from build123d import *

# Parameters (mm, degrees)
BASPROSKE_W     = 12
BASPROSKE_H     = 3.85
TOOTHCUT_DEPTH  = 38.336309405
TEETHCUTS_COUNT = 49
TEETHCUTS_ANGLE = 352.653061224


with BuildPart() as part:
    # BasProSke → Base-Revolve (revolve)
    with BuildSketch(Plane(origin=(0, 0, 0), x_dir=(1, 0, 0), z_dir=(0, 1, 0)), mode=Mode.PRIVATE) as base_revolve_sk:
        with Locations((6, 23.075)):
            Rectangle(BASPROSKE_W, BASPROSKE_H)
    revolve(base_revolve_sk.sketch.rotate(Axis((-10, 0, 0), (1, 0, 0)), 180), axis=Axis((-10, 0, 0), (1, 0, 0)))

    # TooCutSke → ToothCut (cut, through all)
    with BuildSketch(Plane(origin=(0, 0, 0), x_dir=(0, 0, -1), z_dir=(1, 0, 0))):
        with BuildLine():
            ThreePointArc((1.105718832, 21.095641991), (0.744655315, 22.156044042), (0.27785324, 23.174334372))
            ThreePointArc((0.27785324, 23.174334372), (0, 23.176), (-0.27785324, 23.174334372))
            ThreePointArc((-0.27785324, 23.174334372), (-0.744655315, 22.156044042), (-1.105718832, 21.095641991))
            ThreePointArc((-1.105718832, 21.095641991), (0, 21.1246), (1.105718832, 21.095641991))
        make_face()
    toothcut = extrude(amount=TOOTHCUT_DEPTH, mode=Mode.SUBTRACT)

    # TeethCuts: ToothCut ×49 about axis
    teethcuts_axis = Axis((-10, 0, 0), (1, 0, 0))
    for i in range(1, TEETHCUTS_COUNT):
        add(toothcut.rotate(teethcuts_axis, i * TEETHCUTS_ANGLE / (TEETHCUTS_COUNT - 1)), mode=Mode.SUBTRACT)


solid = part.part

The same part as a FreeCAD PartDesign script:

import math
import FreeCAD as App
import Part
import Sketcher
Q = App.Units.Quantity


def add_polygon(sketch, points):
    """Adds a closed chain of lines whose ends are joined by coincident constraints."""
    first, n = sketch.GeometryCount, len(points)
    for a, b in zip(points, points[1:] + points[:1]):
        sketch.addGeometry(Part.LineSegment(App.Vector(*a, 0), App.Vector(*b, 0)), False)
    for i in range(n):
        sketch.addConstraint(Sketcher.Constraint("Coincident", first + i, 2, first + (i + 1) % n, 1))

doc = App.newDocument("Part")
body = doc.addObject("PartDesign::Body", "Body")

# Sketch on XZ plane
sketch1 = body.newObject("Sketcher::SketchObject", "Sketch")
sketch1.AttachmentSupport = (doc.getObject("XZ_Plane"), [""])
sketch1.MapMode = "FlatFace"
add_polygon(sketch1, [(0, -25), (0, -21.1), (12, -21.1), (12, -25)])  # lines 0-3
sketch1.addConstraint(Sketcher.Constraint("Vertical", 0))
sketch1.addConstraint(Sketcher.Constraint("Horizontal", 1))
sketch1.addConstraint(Sketcher.Constraint("Vertical", 2))
sketch1.addConstraint(Sketcher.Constraint("Horizontal", 3))
sketch1.addConstraint(Sketcher.Constraint("PointOnObject", 0, 2, -2))
sketch1.addConstraint(Sketcher.Constraint("DistanceX", 1, 1, 1, 2, Q("12 mm")))
sketch1.addConstraint(Sketcher.Constraint("DistanceY", 2, 2, -1, 1, Q("25 mm")))
sketch1.addConstraint(Sketcher.Constraint("DistanceY", 0, 1, 0, 2, Q("3.85 mm")))
revolution = body.newObject("PartDesign::Revolution", "Revolution")
revolution.Profile = sketch1
revolution.ReferenceAxis = (sketch1, ["H_Axis"])
revolution.Angle = 360

# Sketch on YZ plane
sketch2 = body.newObject("Sketcher::SketchObject", "Sketch001")
sketch2.AttachmentSupport = (doc.getObject("YZ_Plane"), [""])
sketch2.MapMode = "FlatFace"
sketch2.addGeometry(Part.ArcOfCircle(Part.Circle(App.Vector(18.1, 9.5, 0), App.Vector(0, 0, 1), 11), math.radians(-74.11), math.radians(-62.46)), False)
sketch2.addGeometry(Part.ArcOfCircle(Part.Circle(App.Vector(0, 0, 0), App.Vector(0, 0, 1), 23.2), math.radians(-0.69), math.radians(0.69)), False)
sketch2.addGeometry(Part.ArcOfCircle(Part.Circle(App.Vector(18.1, -9.5, 0), App.Vector(0, 0, 1), 11), math.radians(62.46), math.radians(74.11)), False)
sketch2.addGeometry(Part.ArcOfCircle(Part.Circle(App.Vector(0, 0, 0), App.Vector(0, 0, 1), 21.1), math.radians(-3), math.radians(3)), False)
sketch2.addConstraint(Sketcher.Constraint("Coincident", 0, 2, 1, 1))
sketch2.addConstraint(Sketcher.Constraint("Coincident", 1, 2, 2, 1))
sketch2.addConstraint(Sketcher.Constraint("Coincident", 2, 2, 3, 2))
sketch2.addConstraint(Sketcher.Constraint("Coincident", 3, 1, 0, 1))
sketch2.addConstraint(Sketcher.Constraint("Coincident", 1, 3, -1, 1))
sketch2.addConstraint(Sketcher.Constraint("Coincident", 3, 3, -1, 1))
sketch2.addConstraint(Sketcher.Constraint("Equal", 0, 2))
sketch2.addConstraint(Sketcher.Constraint("Symmetric", 0, 3, 2, 3, -1))
sketch2.addConstraint(Sketcher.Constraint("Radius", 0, Q("11.025 mm")))
sketch2.addConstraint(Sketcher.Constraint("Radius", 3, Q("21.1246 mm")))
sketch2.addConstraint(Sketcher.Constraint("Radius", 1, Q("23.176002 mm")))
sketch2.addConstraint(Sketcher.Constraint("DistanceX", -1, 1, 2, 2, Q("21.095642 mm")))
sketch2.addConstraint(Sketcher.Constraint("DistanceX", 1, 3, 0, 3, Q("18.076809 mm")))
pocket1 = body.newObject("PartDesign::Pocket", "Pocket")
pocket1.Profile = sketch2
pocket1.Type = "ThroughAll"
pocket1.Reversed = True
doc.recompute()

polarpattern = body.newObject("PartDesign::PolarPattern", "PolarPattern")
polarpattern.Originals = [pocket1]
polarpattern.Axis = (doc.getObject("X_Axis"), [""])
polarpattern.Angle = 360
polarpattern.Occurrences = 49
body.Tip = polarpattern

doc.recompute()
